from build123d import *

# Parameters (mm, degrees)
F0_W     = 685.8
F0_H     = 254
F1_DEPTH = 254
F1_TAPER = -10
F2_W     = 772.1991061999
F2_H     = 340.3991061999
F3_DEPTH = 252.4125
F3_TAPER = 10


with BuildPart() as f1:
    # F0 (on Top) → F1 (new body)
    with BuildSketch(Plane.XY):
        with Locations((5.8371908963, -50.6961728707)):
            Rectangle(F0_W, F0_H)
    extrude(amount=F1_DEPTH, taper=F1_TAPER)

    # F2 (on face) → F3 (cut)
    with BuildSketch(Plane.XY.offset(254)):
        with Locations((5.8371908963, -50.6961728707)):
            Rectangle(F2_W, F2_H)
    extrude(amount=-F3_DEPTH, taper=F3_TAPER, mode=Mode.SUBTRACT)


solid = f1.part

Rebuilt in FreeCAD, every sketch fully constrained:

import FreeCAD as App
import Part
import Sketcher
from FreeCAD import Vector
Q = App.Units.Quantity


def add_polygon(sketch, points):
    """Adds a closed chain of lines whose ends are joined by coincident constraints."""
    first, n = sketch.GeometryCount, len(points)
    for a, b in zip(points, points[1:] + points[:1]):
        sketch.addGeometry(Part.LineSegment(App.Vector(*a, 0), App.Vector(*b, 0)), False)
    for i in range(n):
        sketch.addConstraint(Sketcher.Constraint("Coincident", first + i, 2, first + (i + 1) % n, 1))

doc = App.newDocument("Part")
body = doc.addObject("PartDesign::Body", "Body")

# Sketch on XY plane
sketch1 = body.newObject("Sketcher::SketchObject", "Sketch")
sketch1.AttachmentSupport = (doc.getObject("XY_Plane"), [""])
sketch1.MapMode = "FlatFace"
add_polygon(sketch1, [(-337.062809, 76.303827), (-337.062809, -177.696173), (348.737191, -177.696173), (348.737191, 76.303827)])  # lines 0-3
sketch1.addConstraint([
    Sketcher.Constraint("Vertical", 0),
    Sketcher.Constraint("Horizontal", 1),
    Sketcher.Constraint("Vertical", 2),
    Sketcher.Constraint("Horizontal", 3),
    Sketcher.Constraint("DistanceX", 1, 1, 1, 2, Q("27 in")),
    Sketcher.Constraint("DistanceY", 0, 2, 0, 1, Q("10 in")),
    Sketcher.Constraint("DistanceX", 0, 2, -1, 1, Q("337.062809 mm")),
    Sketcher.Constraint("DistanceY", 0, 2, -1, 1, Q("177.696173 mm")),
])
pad1 = body.newObject("PartDesign::Pad", "Pad")
pad1.Profile = sketch1
pad1.Length = Q("10 in")
pad1.TaperAngle = 10

# Sketch on XY plane
sketch2 = body.newObject("Sketcher::SketchObject", "Sketch001")
sketch2.AttachmentSupport = (doc.getObject("XY_Plane"), [""])
sketch2.MapMode = "FlatFace"
sketch2.AttachmentOffset = App.Placement(Vector(0, 0, 10 * 25.4), App.Rotation())
add_polygon(sketch2, [(-380.262362, 119.50338), (-380.262362, -220.895726), (391.936744, -220.895726), (391.936744, 119.50338)])  # lines 0-3
sketch2.addConstraint([
    Sketcher.Constraint("Vertical", 0),
    Sketcher.Constraint("Horizontal", 1),
    Sketcher.Constraint("Vertical", 2),
    Sketcher.Constraint("Horizontal", 3),
    Sketcher.Constraint("DistanceX", 1, 1, 1, 2, Q("772.199106 mm")),
    Sketcher.Constraint("DistanceY", 0, 2, 0, 1, Q("340.399106 mm")),
    Sketcher.Constraint("DistanceY", -1, 1, 2, 2, Q("119.50338 mm")),
    Sketcher.Constraint("DistanceX", 0, 2, -1, 1, Q("380.262362 mm")),
])
pocket1 = body.newObject("PartDesign::Pocket", "Pocket")
pocket1.Profile = sketch2
pocket1.Length = Q("9.9375 in")
pocket1.TaperAngle = -10

doc.recompute()
